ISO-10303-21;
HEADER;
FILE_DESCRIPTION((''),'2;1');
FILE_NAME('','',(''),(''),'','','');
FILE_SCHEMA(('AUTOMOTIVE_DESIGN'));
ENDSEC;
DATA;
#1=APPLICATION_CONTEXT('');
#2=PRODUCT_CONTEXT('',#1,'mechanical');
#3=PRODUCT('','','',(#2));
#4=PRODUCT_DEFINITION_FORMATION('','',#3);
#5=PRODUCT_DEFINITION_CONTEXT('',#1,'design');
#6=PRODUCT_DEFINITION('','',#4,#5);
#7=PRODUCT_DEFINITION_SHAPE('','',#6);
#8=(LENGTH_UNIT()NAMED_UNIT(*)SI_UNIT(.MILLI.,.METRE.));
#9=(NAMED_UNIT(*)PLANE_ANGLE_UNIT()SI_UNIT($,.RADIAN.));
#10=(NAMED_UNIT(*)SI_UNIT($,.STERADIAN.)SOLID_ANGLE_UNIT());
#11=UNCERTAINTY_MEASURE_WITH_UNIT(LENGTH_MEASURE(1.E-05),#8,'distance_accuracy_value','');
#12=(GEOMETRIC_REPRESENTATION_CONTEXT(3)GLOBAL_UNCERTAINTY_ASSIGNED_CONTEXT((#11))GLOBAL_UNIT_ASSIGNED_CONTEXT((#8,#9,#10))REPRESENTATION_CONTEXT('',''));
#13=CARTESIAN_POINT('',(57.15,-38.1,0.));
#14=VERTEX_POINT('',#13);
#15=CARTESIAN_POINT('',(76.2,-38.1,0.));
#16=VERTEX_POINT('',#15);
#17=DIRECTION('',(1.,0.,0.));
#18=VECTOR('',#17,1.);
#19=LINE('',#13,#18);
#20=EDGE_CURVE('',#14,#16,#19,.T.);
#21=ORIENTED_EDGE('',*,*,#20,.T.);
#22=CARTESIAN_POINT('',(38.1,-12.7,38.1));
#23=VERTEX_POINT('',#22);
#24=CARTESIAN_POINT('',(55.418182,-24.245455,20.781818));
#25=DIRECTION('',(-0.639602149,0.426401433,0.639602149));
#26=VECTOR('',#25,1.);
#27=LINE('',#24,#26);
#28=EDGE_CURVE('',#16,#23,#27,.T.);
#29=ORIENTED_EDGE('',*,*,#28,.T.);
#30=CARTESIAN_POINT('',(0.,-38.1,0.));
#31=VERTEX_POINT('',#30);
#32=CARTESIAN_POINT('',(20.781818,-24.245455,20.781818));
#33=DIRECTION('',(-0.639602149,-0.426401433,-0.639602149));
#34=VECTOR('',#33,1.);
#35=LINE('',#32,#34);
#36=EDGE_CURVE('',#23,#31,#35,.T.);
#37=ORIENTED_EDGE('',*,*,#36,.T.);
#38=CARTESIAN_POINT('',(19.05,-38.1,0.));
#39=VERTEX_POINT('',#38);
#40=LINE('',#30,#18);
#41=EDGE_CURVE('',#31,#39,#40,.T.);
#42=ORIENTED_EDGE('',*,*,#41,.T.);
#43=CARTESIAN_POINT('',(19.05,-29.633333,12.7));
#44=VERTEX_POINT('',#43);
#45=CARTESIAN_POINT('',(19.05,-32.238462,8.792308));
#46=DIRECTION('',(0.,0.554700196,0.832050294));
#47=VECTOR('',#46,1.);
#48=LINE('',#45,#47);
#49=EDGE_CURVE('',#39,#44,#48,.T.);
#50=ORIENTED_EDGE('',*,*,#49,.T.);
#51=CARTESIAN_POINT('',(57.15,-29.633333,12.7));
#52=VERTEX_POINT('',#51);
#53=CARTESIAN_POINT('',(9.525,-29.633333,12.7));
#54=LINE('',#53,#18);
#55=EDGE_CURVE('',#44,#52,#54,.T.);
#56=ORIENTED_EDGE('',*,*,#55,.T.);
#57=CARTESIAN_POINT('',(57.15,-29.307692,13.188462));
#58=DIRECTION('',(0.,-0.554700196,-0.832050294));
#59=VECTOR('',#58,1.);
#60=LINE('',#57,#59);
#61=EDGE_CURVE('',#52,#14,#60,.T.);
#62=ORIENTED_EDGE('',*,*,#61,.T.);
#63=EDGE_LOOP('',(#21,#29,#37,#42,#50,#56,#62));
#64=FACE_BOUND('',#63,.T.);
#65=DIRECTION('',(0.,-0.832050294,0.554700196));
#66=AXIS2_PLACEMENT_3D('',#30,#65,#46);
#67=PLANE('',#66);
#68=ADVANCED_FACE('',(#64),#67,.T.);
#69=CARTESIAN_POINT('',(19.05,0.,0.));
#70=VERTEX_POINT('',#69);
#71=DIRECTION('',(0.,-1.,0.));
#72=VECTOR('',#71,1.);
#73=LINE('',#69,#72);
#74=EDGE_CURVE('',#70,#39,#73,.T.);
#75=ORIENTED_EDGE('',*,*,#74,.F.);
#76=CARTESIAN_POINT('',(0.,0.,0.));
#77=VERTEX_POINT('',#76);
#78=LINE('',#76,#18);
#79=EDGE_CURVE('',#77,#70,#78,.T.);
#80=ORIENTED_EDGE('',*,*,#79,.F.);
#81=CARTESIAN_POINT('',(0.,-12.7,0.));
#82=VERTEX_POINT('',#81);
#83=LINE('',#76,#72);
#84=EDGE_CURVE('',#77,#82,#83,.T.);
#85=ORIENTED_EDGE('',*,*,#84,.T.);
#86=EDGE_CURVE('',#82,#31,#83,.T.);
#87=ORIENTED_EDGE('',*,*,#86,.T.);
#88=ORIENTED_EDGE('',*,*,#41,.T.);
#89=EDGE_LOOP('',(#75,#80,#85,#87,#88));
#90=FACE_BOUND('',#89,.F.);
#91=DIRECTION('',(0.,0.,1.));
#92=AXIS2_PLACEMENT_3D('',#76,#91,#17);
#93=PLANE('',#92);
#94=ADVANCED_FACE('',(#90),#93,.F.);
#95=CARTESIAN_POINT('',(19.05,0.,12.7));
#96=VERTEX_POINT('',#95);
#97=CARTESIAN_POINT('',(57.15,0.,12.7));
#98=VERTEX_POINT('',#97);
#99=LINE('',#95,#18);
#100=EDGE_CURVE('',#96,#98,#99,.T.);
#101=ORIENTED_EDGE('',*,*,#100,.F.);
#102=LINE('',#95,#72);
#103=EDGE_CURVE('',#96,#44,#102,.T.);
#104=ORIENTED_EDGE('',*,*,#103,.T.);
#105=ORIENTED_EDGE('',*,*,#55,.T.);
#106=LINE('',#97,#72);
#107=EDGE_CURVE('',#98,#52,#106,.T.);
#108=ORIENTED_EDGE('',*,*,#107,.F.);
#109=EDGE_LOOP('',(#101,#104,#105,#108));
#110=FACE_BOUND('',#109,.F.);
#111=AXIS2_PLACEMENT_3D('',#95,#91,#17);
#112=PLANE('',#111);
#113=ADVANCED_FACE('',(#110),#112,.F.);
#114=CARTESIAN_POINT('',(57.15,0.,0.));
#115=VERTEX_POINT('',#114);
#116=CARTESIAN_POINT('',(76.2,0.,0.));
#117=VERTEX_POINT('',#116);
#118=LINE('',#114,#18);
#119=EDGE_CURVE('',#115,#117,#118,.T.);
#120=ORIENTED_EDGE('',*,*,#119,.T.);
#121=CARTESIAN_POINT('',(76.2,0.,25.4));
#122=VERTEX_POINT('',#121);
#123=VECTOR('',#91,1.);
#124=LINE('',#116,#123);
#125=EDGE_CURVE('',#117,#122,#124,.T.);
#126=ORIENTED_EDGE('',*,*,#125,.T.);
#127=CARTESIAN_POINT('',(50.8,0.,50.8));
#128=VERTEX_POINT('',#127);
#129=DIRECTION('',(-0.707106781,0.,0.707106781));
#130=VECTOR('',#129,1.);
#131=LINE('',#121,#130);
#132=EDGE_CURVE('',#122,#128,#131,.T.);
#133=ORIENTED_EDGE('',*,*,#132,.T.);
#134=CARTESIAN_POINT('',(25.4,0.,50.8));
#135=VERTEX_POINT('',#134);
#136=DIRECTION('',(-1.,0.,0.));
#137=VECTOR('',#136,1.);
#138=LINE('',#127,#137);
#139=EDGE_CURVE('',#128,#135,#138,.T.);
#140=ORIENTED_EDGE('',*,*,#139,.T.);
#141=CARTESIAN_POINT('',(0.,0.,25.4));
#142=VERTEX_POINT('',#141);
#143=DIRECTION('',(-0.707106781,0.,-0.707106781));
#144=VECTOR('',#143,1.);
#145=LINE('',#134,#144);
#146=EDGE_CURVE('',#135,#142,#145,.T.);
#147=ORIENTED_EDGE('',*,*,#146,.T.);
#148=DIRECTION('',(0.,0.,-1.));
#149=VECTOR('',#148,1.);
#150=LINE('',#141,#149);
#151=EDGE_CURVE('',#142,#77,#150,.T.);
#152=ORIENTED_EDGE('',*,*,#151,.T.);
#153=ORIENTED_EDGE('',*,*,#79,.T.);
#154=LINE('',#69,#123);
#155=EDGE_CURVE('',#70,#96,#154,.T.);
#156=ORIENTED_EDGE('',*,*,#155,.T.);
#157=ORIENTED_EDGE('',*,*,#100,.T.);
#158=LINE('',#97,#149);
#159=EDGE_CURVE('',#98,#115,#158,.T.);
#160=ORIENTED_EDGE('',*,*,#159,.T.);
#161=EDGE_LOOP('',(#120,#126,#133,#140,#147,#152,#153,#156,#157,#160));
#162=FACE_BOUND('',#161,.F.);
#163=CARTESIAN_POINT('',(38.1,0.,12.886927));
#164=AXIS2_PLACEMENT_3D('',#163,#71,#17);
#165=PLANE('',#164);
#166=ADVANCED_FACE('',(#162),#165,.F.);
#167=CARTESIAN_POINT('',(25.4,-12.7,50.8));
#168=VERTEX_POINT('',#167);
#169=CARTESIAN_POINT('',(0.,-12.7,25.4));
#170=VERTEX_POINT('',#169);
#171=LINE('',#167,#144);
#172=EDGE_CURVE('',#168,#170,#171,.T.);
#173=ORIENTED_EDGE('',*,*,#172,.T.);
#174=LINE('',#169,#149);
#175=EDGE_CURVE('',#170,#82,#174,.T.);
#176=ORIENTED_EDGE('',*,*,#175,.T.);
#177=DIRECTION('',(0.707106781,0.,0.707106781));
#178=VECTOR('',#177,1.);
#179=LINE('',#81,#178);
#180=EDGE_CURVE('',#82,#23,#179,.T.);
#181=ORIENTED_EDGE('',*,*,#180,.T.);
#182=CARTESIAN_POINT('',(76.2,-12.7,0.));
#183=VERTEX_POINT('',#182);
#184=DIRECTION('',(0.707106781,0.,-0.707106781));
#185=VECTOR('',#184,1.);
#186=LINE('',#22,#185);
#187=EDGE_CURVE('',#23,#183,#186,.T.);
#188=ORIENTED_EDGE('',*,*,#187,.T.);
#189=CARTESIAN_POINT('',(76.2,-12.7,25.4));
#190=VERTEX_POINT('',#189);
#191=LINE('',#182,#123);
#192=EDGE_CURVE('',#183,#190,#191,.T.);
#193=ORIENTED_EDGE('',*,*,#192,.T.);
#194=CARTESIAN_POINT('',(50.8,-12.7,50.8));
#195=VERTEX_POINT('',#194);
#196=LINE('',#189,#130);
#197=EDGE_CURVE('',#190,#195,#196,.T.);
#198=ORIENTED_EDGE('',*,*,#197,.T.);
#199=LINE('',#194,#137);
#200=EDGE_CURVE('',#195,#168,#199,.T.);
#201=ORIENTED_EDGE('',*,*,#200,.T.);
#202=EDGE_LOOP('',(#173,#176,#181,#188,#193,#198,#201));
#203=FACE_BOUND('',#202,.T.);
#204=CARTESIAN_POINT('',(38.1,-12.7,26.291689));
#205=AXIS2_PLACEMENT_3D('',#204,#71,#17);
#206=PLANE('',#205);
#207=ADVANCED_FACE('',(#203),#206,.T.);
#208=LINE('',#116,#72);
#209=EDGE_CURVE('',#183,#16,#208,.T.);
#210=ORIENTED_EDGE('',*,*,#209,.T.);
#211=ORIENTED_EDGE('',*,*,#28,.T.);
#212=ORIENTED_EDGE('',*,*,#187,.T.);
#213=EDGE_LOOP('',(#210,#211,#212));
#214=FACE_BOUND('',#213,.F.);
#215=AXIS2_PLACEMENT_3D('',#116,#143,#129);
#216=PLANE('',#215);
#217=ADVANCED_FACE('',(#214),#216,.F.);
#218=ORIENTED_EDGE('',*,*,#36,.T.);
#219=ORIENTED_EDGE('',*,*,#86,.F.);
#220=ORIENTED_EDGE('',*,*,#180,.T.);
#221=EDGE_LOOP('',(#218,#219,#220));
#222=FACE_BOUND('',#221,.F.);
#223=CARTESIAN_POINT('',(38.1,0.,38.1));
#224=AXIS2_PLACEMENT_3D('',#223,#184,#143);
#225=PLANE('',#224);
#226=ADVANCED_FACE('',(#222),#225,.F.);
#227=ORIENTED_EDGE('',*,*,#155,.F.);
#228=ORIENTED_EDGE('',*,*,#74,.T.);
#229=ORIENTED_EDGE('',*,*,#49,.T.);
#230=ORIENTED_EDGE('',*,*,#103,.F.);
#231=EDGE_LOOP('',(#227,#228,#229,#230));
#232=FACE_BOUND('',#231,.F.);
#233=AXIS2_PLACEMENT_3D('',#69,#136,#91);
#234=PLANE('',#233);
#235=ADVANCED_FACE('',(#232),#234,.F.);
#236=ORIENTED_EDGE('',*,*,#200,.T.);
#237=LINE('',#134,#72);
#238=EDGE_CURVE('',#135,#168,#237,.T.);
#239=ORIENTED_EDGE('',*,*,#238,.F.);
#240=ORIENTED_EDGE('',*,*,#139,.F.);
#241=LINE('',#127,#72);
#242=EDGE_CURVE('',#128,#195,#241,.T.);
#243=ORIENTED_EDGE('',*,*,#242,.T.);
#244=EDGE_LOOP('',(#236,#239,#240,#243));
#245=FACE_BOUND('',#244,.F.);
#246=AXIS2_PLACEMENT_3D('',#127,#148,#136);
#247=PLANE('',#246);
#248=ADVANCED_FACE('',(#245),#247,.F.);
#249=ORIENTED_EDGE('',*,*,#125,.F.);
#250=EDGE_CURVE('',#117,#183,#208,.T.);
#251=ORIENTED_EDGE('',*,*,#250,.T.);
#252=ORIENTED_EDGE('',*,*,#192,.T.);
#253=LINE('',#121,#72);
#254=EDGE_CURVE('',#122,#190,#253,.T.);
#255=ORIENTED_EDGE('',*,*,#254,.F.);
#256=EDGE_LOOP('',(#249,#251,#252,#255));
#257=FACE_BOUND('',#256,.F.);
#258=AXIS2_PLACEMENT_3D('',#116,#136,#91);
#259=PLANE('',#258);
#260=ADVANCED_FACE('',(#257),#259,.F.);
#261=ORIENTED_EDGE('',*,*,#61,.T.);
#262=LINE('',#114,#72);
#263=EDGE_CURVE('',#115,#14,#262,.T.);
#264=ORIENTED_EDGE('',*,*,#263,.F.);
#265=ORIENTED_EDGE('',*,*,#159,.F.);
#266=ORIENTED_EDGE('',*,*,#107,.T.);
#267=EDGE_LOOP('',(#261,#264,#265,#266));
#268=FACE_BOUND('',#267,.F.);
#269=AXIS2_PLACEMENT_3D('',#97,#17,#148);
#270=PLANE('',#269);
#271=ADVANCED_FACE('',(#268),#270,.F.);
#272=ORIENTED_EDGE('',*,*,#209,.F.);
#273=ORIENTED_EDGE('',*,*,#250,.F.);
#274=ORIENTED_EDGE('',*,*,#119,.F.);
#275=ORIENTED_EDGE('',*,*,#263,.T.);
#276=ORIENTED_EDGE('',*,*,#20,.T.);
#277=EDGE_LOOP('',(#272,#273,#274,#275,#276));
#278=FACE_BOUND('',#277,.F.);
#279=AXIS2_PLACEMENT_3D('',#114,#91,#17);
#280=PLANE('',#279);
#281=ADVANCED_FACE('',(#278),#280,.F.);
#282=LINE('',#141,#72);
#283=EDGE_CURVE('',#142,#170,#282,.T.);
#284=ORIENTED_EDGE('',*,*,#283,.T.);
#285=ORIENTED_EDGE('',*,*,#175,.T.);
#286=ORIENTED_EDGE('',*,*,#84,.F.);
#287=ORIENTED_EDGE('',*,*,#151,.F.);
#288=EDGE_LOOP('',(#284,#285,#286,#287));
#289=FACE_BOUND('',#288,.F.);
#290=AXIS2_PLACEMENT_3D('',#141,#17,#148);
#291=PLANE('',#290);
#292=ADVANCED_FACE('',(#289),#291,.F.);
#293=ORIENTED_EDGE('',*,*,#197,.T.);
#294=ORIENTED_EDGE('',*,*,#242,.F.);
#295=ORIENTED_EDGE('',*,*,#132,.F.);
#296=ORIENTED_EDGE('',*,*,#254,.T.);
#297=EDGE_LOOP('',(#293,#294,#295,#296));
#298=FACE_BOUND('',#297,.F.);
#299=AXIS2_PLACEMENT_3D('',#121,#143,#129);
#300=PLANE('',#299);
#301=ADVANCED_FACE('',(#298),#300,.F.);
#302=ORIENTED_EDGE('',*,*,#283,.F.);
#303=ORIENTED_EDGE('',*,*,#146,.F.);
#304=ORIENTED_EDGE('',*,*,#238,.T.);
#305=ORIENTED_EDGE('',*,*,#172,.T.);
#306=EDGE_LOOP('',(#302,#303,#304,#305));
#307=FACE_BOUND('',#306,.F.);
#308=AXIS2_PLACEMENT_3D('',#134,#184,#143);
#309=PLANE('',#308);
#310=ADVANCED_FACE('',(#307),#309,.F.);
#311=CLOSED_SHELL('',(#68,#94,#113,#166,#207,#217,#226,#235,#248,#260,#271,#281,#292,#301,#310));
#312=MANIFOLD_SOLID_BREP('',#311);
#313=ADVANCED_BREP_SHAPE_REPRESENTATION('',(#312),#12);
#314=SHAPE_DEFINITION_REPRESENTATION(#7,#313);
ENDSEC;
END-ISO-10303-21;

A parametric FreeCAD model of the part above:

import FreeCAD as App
import Part
import Sketcher
from FreeCAD import Vector
Q = App.Units.Quantity

doc = App.newDocument("Part")
params = doc.addObject("Spreadsheet::Sheet", "Params")
for row, (alias, value) in enumerate([
    ("sketch1_width", "1 in"),
    ("pad1_length", "0.5 in"),
    ("sketch2_width", "1.5 in"),
    ("sketch2_height", "0.5 in"),
    ("pad2_length", "1.5 in"),
    ("sketch3_width", "1 in"),
    ("sketch3_height", "1.5 in"),
    ("pocket1_length", "3 in"),
], start=1):
    params.set(f"A{row}", alias)
    params.set(f"B{row}", "=" + value)
    params.setAlias(f"B{row}", alias)

body = doc.addObject("PartDesign::Body", "Body")

# Sketch on XZ plane
sketch1 = body.newObject("Sketcher::SketchObject", "Sketch")
sketch1.AttachmentSupport = (doc.getObject("XZ_Plane"), [""])
sketch1.MapMode = "FlatFace"
sketch1.addGeometry([
    Part.LineSegment(Vector(0, 25, 0), Vector(0, 0, 0)),  # 0
    Part.LineSegment(Vector(0, 0, 0), Vector(38, 38, 0)),  # 1
    Part.LineSegment(Vector(38, 38, 0), Vector(76, 0, 0)),  # 2
    Part.LineSegment(Vector(76, 0, 0), Vector(76, 25, 0)),  # 3
    Part.LineSegment(Vector(76, 25, 0), Vector(51, 51, 0)),  # 4
    Part.LineSegment(Vector(51, 51, 0), Vector(25, 51, 0)),  # 5
    Part.LineSegment(Vector(25, 51, 0), Vector(0, 25, 0)),  # 6
], False)
sketch1.addConstraint([
    Sketcher.Constraint("Coincident", 0, 2, 1, 1),
    Sketcher.Constraint("Coincident", 1, 2, 2, 1),
    Sketcher.Constraint("Coincident", 2, 2, 3, 1),
    Sketcher.Constraint("Coincident", 3, 2, 4, 1),
    Sketcher.Constraint("Coincident", 4, 2, 5, 1),
    Sketcher.Constraint("Coincident", 5, 2, 6, 1),
    Sketcher.Constraint("Coincident", 6, 2, 0, 1),
    Sketcher.Constraint("Vertical", 0),
    Sketcher.Constraint("Vertical", 3),
    Sketcher.Constraint("Horizontal", 5),
    Sketcher.Constraint("Coincident", 0, 2, -1, 1),
    Sketcher.Constraint("PointOnObject", 2, 2, -1),
    Sketcher.Constraint("Perpendicular", 1, 2),
    Sketcher.Constraint("Parallel", 2, 4),
    Sketcher.Constraint("Perpendicular", 4, 6),
    Sketcher.Constraint("Horizontal", 3, 2, 6, 2),
    Sketcher.Constraint("Equal", 5, 0),
    Sketcher.Constraint("Equal", 1, 2),
    Sketcher.Constraint("DistanceX", 5, 2, 5, 1, Q("1 in")),
    Sketcher.Constraint("DistanceX", -1, 1, 2, 2, Q("3 in")),
])
sketch1.setExpression("Constraints[18]", "Params.sketch1_width")
pad1 = body.newObject("PartDesign::Pad", "Pad")
pad1.Profile = sketch1
pad1.setExpression("Length", "Params.pad1_length")

# Sketch on XZ plane
sketch2 = body.newObject("Sketcher::SketchObject", "Sketch001")
sketch2.AttachmentSupport = (doc.getObject("XZ_Plane"), [""])
sketch2.MapMode = "FlatFace"
sketch2.addGeometry([
    Part.LineSegment(Vector(38, 38, 0), Vector(0, 0, 0)),  # 0
    Part.LineSegment(Vector(0, 0, 0), Vector(19, 0, 0)),  # 1
    Part.LineSegment(Vector(19, 0, 0), Vector(19, 13, 0)),  # 2
    Part.LineSegment(Vector(19, 13, 0), Vector(57, 13, 0)),  # 3
    Part.LineSegment(Vector(57, 13, 0), Vector(57, 0, 0)),  # 4
    Part.LineSegment(Vector(57, 0, 0), Vector(76, 0, 0)),  # 5
    Part.LineSegment(Vector(76, 0, 0), Vector(38, 38, 0)),  # 6
], False)
sketch2.addConstraint([
    Sketcher.Constraint("Coincident", 0, 2, 1, 1),
    Sketcher.Constraint("Coincident", 1, 2, 2, 1),
    Sketcher.Constraint("Coincident", 2, 2, 3, 1),
    Sketcher.Constraint("Coincident", 3, 2, 4, 1),
    Sketcher.Constraint("Coincident", 4, 2, 5, 1),
    Sketcher.Constraint("Coincident", 5, 2, 6, 1),
    Sketcher.Constraint("Coincident", 6, 2, 0, 1),
    Sketcher.Constraint("Horizontal", 1),
    Sketcher.Constraint("Vertical", 2),
    Sketcher.Constraint("Horizontal", 3),
    Sketcher.Constraint("Vertical", 4),
    Sketcher.Constraint("Horizontal", 5),
    Sketcher.Constraint("Coincident", 0, 2, -1, 1),
    Sketcher.Constraint("PointOnObject", 4, 2, -1),
    Sketcher.Constraint("Perpendicular", 0, 6),
    Sketcher.Constraint("Equal", 1, 5),
    Sketcher.Constraint("Equal", 0, 6),
    Sketcher.Constraint("DistanceX", 3, 1, 3, 2, Q("1.5 in")),
    Sketcher.Constraint("DistanceY", 2, 1, 2, 2, Q("0.5 in")),
    Sketcher.Constraint("DistanceX", -1, 1, 5, 2, Q("3 in")),
])
sketch2.setExpression("Constraints[17]", "Params.sketch2_width")
sketch2.setExpression("Constraints[18]", "Params.sketch2_height")
pad2 = body.newObject("PartDesign::Pad", "Pad001")
pad2.Profile = sketch2
pad2.setExpression("Length", "Params.pad2_length")

# Sketch on YZ plane
sketch3 = body.newObject("Sketcher::SketchObject", "Sketch002")
sketch3.AttachmentSupport = (doc.getObject("YZ_Plane"), [""])
sketch3.MapMode = "FlatFace"
sketch3.addGeometry([
    Part.LineSegment(Vector(-13, 38, 0), Vector(-38, 38, 0)),
    Part.LineSegment(Vector(-38, 38, 0), Vector(-38, 0, 0)),
    Part.LineSegment(Vector(-38, 0, 0), Vector(-13, 38, 0)),
], False)
sketch3.addConstraint([
    Sketcher.Constraint("Coincident", 0, 2, 1, 1),
    Sketcher.Constraint("Coincident", 1, 2, 2, 1),
    Sketcher.Constraint("Coincident", 2, 2, 0, 1),
    Sketcher.Constraint("Horizontal", 0),
    Sketcher.Constraint("Vertical", 1),
    Sketcher.Constraint("PointOnObject", 1, 2, -1),
    Sketcher.Constraint("DistanceX", 0, 2, 0, 1, Q("1 in")),
    Sketcher.Constraint("DistanceY", 1, 2, 1, 1, Q("1.5 in")),
    Sketcher.Constraint("DistanceX", 0, 2, -1, 1, Q("1.5 in")),
])
sketch3.setExpression("Constraints[6]", "Params.sketch3_width")
sketch3.setExpression("Constraints[7]", "Params.sketch3_height")
pocket1 = body.newObject("PartDesign::Pocket", "Pocket")
pocket1.Profile = sketch3
pocket1.setExpression("Length", "Params.pocket1_length")
pocket1.Reversed = True

doc.recompute()
